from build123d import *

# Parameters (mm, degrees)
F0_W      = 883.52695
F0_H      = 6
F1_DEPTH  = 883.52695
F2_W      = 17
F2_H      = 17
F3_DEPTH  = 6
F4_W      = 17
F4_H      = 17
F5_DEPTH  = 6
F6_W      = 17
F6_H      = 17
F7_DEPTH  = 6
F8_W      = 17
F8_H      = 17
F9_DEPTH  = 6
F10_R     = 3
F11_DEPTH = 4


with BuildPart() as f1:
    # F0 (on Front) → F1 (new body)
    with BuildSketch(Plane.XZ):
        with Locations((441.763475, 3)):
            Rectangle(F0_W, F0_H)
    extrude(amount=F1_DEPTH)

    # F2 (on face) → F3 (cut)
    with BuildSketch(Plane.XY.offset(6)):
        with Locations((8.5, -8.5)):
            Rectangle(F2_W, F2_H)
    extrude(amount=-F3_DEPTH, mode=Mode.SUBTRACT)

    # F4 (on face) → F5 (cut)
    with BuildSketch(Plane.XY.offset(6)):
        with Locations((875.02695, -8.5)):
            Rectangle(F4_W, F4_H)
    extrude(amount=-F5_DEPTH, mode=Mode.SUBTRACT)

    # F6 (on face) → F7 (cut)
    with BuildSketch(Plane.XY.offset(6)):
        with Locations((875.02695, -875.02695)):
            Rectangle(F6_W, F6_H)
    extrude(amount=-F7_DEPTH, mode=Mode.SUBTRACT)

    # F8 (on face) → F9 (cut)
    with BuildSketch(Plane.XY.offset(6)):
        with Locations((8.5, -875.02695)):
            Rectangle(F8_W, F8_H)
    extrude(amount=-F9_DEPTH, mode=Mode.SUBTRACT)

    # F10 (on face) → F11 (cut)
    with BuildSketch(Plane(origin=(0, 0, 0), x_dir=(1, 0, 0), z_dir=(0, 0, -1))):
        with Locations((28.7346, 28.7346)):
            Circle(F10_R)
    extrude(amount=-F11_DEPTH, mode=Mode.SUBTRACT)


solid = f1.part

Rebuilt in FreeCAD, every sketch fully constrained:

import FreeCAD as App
import Part
import Sketcher


def add_polygon(sketch, points):
    """Adds a closed chain of lines whose ends are joined by coincident constraints."""
    first, n = sketch.GeometryCount, len(points)
    for a, b in zip(points, points[1:] + points[:1]):
        sketch.addGeometry(Part.LineSegment(App.Vector(*a, 0), App.Vector(*b, 0)), False)
    for i in range(n):
        sketch.addConstraint(Sketcher.Constraint("Coincident", first + i, 2, first + (i + 1) % n, 1))

doc = App.newDocument("Part")
params = doc.addObject("Spreadsheet::Sheet", "Params")
for row, (alias, value) in enumerate([
    ("sketch1_height", "6 mm"),
    ("pad1_length", "883.52695 mm"),
    ("sketch2_width", "17 mm"),
    ("pocket1_length", "6 mm"),
    ("sketch3_width", "17 mm"),
    ("pocket2_length", "6 mm"),
    ("sketch4_width", "17 mm"),
    ("pocket3_length", "6 mm"),
    ("sketch5_width", "17 mm"),
    ("pocket4_length", "6 mm"),
    ("sketch6_diameter", "6 mm"),
    ("pocket5_length", "4 mm"),
], start=1):
    params.set(f"A{row}", alias)
    params.set(f"B{row}", "=" + value)
    params.setAlias(f"B{row}", alias)

body = doc.addObject("PartDesign::Body", "Body")

# Sketch on XZ plane
sketch1 = body.newObject("Sketcher::SketchObject", "Sketch")
sketch1.AttachmentSupport = (doc.getObject("XZ_Plane"), [""])
sketch1.MapMode = "FlatFace"
add_polygon(sketch1, [(0, 6), (0, 0), (884, 0), (884, 6)])  # lines 0-3
sketch1.addConstraint([
    Sketcher.Constraint("Vertical", 0),
    Sketcher.Constraint("Horizontal", 1),
    Sketcher.Constraint("Vertical", 2),
    Sketcher.Constraint("Horizontal", 3),
    Sketcher.Constraint("Coincident", 0, 2, -1, 1),
    Sketcher.Constraint("DistanceY", 0, 2, 0, 1, 6.0),
    Sketcher.Constraint("DistanceX", 1, 1, 1, 2, 883.52695),
])
sketch1.setExpression("Constraints[9]", "Params.sketch1_height")
pad1 = body.newObject("PartDesign::Pad", "Pad")
pad1.Profile = sketch1
pad1.setExpression("Length", "Params.pad1_length")

# Sketch on XY plane
sketch2 = body.newObject("Sketcher::SketchObject", "Sketch001")
sketch2.AttachmentSupport = (doc.getObject("XY_Plane"), [""])
sketch2.MapMode = "FlatFace"
sketch2.AttachmentOffset = App.Placement(App.Vector(0, 0, 6), App.Rotation())
add_polygon(sketch2, [(0, 0), (0, -17), (17, -17), (17, 0)])  # lines 0-3
sketch2.addConstraint([
    Sketcher.Constraint("Vertical", 0),
    Sketcher.Constraint("Horizontal", 1),
    Sketcher.Constraint("Vertical", 2),
    Sketcher.Constraint("Horizontal", 3),
    Sketcher.Constraint("Coincident", 3, 2, -1, 1),
    Sketcher.Constraint("Equal", 3, 0),
    Sketcher.Constraint("DistanceX", 1, 1, 1, 2, 17.0),
])
sketch2.setExpression("Constraints[10]", "Params.sketch2_width")
pocket1 = body.newObject("PartDesign::Pocket", "Pocket")
pocket1.Profile = sketch2
pocket1.setExpression("Length", "Params.pocket1_length")

# Sketch on XY plane
sketch3 = body.newObject("Sketcher::SketchObject", "Sketch002")
sketch3.AttachmentSupport = (doc.getObject("XY_Plane"), [""])
sketch3.MapMode = "FlatFace"
sketch3.AttachmentOffset = App.Placement(App.Vector(0, 0, 6), App.Rotation())
add_polygon(sketch3, [(867, 0), (867, -17), (884, -17), (884, 0)])  # lines 0-3
sketch3.addConstraint([
    Sketcher.Constraint("Vertical", 0),
    Sketcher.Constraint("Horizontal", 1),
    Sketcher.Constraint("Vertical", 2),
    Sketcher.Constraint("Horizontal", 3),
    Sketcher.Constraint("PointOnObject", 2, 2, -1),
    Sketcher.Constraint("Equal", 3, 0),
    Sketcher.Constraint("DistanceX", 1, 1, 1, 2, 17.0),
    Sketcher.Constraint("DistanceX", -1, 1, 0, 2, 866.52695),
])
sketch3.setExpression("Constraints[10]", "Params.sketch3_width")
pocket2 = body.newObject("PartDesign::Pocket", "Pocket001")
pocket2.Profile = sketch3
pocket2.setExpression("Length", "Params.pocket2_length")

# Sketch on XY plane
sketch4 = body.newObject("Sketcher::SketchObject", "Sketch003")
sketch4.AttachmentSupport = (doc.getObject("XY_Plane"), [""])
sketch4.MapMode = "FlatFace"
sketch4.AttachmentOffset = App.Placement(App.Vector(0, 0, 6), App.Rotation())
add_polygon(sketch4, [(867, -867), (867, -884), (884, -884), (884, -867)])  # lines 0-3
sketch4.addConstraint([
    Sketcher.Constraint("Vertical", 0),
    Sketcher.Constraint("Horizontal", 1),
    Sketcher.Constraint("Vertical", 2),
    Sketcher.Constraint("Horizontal", 3),
    Sketcher.Constraint("Equal", 3, 0),
    Sketcher.Constraint("DistanceX", 1, 1, 1, 2, 17.0),
    Sketcher.Constraint("DistanceX", -1, 1, 0, 2, 866.52695),
    Sketcher.Constraint("DistanceY", 0, 2, -1, 1, 883.52695),
])
sketch4.setExpression("Constraints[9]", "Params.sketch4_width")
pocket3 = body.newObject("PartDesign::Pocket", "Pocket002")
pocket3.Profile = sketch4
pocket3.setExpression("Length", "Params.pocket3_length")

# Sketch on XY plane
sketch5 = body.newObject("Sketcher::SketchObject", "Sketch004")
sketch5.AttachmentSupport = (doc.getObject("XY_Plane"), [""])
sketch5.MapMode = "FlatFace"
sketch5.AttachmentOffset = App.Placement(App.Vector(0, 0, 6), App.Rotation())
add_polygon(sketch5, [(0, -867), (0, -884), (17, -884), (17, -867)])  # lines 0-3
sketch5.addConstraint([
    Sketcher.Constraint("Vertical", 0),
    Sketcher.Constraint("Horizontal", 1),
    Sketcher.Constraint("Vertical", 2),
    Sketcher.Constraint("Horizontal", 3),
    Sketcher.Constraint("PointOnObject", 0, 2, -2),
    Sketcher.Constraint("Equal", 3, 0),
    Sketcher.Constraint("DistanceX", 1, 1, 1, 2, 17.0),
    Sketcher.Constraint("DistanceY", 0, 2, -1, 1, 883.52695),
])
sketch5.setExpression("Constraints[10]", "Params.sketch5_width")
pocket4 = body.newObject("PartDesign::Pocket", "Pocket003")
pocket4.Profile = sketch5
pocket4.setExpression("Length", "Params.pocket4_length")

# Sketch on XY plane
sketch6 = body.newObject("Sketcher::SketchObject", "Sketch005")
sketch6.AttachmentSupport = (doc.getObject("XY_Plane"), [""])
sketch6.MapMode = "FlatFace"
sketch6.addGeometry(Part.Circle(App.Vector(28.7, -28.7, 0), App.Vector(0, 0, 1), 3), False)
sketch6.addConstraint([
    Sketcher.Constraint("Diameter", 0, 6.0),
    Sketcher.Constraint("DistanceX", -1, 1, 0, 3, 28.7346),
    Sketcher.Constraint("DistanceY", 0, 3, -1, 1, 28.7346),
])
sketch6.setExpression("Constraints[0]", "Params.sketch6_diameter")
pocket5 = body.newObject("PartDesign::Pocket", "Pocket004")
pocket5.Profile = sketch6
pocket5.setExpression("Length", "Params.pocket5_length")
pocket5.Reversed = True

doc.recompute()
